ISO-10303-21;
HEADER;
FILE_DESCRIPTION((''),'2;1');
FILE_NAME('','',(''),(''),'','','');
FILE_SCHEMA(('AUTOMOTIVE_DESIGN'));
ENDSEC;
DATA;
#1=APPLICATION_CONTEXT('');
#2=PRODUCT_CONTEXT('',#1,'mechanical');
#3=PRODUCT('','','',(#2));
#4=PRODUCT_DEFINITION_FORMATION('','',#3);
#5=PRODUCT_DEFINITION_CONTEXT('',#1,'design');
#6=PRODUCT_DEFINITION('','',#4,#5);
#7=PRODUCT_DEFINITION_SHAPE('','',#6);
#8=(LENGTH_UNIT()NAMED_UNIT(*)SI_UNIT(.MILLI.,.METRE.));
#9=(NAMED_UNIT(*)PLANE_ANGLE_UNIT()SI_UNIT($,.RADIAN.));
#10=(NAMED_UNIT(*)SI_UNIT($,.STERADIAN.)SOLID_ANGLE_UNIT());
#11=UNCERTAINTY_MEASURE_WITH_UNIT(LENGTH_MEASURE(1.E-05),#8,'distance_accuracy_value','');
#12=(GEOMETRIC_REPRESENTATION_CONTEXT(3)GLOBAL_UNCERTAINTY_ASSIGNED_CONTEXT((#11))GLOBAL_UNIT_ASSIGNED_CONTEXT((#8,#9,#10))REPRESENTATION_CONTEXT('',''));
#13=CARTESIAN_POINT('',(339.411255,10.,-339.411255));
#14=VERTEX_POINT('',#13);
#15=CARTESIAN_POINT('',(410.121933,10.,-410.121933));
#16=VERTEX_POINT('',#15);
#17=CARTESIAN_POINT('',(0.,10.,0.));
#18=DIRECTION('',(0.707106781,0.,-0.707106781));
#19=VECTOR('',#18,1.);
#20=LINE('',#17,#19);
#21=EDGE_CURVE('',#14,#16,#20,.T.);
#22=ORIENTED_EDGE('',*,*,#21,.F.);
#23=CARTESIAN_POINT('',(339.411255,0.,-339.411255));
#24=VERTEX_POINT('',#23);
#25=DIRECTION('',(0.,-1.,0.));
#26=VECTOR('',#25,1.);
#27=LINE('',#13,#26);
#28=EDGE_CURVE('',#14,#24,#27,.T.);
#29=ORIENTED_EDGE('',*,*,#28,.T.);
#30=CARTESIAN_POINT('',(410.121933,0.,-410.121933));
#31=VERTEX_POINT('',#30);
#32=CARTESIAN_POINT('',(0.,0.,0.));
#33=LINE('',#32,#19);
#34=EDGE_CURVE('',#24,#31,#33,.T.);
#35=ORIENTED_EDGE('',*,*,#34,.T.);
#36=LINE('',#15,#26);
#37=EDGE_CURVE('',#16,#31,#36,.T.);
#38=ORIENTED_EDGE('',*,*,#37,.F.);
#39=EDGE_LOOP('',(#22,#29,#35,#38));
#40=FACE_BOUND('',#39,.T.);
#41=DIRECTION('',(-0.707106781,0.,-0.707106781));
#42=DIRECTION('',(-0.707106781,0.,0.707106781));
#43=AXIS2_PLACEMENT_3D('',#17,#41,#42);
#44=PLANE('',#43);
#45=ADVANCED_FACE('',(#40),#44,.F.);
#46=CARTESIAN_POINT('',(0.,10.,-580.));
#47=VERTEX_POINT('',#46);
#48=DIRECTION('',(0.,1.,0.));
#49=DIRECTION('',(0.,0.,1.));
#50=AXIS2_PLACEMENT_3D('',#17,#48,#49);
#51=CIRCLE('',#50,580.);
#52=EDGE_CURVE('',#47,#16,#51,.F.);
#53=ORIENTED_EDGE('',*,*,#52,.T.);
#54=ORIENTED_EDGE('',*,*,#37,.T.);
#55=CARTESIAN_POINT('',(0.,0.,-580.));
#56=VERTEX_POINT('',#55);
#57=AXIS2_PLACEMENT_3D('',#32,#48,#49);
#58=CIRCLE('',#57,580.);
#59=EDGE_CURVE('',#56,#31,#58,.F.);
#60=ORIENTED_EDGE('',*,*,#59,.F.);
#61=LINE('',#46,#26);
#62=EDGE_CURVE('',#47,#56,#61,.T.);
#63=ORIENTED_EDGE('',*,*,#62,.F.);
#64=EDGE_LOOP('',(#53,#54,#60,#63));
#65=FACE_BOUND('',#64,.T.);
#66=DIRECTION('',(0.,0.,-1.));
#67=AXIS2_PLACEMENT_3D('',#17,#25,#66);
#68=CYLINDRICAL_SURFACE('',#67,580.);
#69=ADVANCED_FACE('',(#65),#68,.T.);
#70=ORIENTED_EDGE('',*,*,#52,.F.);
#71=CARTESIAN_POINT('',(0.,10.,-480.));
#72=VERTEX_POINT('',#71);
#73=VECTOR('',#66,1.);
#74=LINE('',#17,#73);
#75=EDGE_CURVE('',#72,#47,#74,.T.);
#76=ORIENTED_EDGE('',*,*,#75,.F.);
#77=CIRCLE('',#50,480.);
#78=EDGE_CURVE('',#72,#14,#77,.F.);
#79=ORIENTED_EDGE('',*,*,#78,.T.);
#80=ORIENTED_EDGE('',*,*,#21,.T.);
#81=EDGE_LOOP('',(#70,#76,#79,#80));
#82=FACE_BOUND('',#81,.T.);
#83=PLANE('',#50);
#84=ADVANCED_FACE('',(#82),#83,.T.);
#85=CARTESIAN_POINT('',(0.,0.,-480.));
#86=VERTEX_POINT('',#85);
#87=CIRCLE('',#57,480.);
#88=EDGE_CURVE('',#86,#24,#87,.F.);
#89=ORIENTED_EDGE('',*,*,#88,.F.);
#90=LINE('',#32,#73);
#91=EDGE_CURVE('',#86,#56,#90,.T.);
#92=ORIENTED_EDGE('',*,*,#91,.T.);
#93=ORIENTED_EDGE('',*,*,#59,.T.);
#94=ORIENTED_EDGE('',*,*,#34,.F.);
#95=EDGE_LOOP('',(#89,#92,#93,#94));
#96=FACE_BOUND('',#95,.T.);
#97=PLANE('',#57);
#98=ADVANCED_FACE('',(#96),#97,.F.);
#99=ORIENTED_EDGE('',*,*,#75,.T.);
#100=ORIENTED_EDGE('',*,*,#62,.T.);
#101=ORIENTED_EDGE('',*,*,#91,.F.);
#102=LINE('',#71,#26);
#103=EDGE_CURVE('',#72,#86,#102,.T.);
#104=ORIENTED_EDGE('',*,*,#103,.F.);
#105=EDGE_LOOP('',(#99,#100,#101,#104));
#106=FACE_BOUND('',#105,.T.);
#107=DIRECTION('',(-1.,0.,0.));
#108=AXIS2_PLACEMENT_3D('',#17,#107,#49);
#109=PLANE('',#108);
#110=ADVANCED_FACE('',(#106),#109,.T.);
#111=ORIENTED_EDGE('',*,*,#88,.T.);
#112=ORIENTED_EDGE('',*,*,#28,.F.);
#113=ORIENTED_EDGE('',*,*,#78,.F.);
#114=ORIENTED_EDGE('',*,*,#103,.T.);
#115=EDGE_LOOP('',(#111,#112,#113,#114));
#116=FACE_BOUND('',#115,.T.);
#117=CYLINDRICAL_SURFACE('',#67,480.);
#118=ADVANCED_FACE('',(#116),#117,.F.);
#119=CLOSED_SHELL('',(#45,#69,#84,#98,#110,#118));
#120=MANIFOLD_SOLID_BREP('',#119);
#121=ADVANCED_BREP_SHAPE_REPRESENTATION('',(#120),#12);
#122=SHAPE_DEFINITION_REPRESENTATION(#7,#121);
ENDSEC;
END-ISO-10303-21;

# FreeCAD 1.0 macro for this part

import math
import FreeCAD as App
import Part
import Sketcher
from FreeCAD import Vector
Q = App.Units.Quantity

doc = App.newDocument("Part")
body = doc.addObject("PartDesign::Body", "Body")

# Sketch on XZ plane
sketch1 = body.newObject("Sketcher::SketchObject", "Sketch")
sketch1.AttachmentSupport = (doc.getObject("XZ_Plane"), [""])
sketch1.MapMode = "FlatFace"
sketch1.addGeometry([
    Part.ArcOfCircle(Part.Circle(Vector(0, 0, 0), Vector(0, 0, 1), 580), math.radians(-90), math.radians(-45)),
    Part.LineSegment(Vector(0, -580, 0), Vector(0, -480, 0)),
    Part.ArcOfCircle(Part.Circle(Vector(0, 0, 0), Vector(0, 0, 1), 480), math.radians(-90), math.radians(-45)),
    Part.LineSegment(Vector(339.411255, -339.411255, 0), Vector(410.121933, -410.121933, 0)),
], False)
sketch1.addConstraint([
    Sketcher.Constraint("Coincident", 0, 1, 1, 1),
    Sketcher.Constraint("Coincident", 1, 2, 2, 1),
    Sketcher.Constraint("Coincident", 2, 2, 3, 1),
    Sketcher.Constraint("Coincident", 3, 2, 0, 2),
    Sketcher.Constraint("Vertical", 1),
    Sketcher.Constraint("Coincident", 0, 3, -1, 1),
    Sketcher.Constraint("Coincident", 2, 3, -1, 1),
    Sketcher.Constraint("PointOnObject", 1, 2, -2),
    Sketcher.Constraint("Radius", 0, Q("580 mm")),
    Sketcher.Constraint("Radius", 2, Q("480 mm")),
    Sketcher.Constraint("Angle", 3, Q("-45 deg")),
    Sketcher.Constraint("DistanceX", -1, 1, 3, 2, Q("410.121933 mm")),
])
pad1 = body.newObject("PartDesign::Pad", "Pad")
pad1.Profile = sketch1
pad1.Length = 10
pad1.Reversed = True

doc.recompute()
